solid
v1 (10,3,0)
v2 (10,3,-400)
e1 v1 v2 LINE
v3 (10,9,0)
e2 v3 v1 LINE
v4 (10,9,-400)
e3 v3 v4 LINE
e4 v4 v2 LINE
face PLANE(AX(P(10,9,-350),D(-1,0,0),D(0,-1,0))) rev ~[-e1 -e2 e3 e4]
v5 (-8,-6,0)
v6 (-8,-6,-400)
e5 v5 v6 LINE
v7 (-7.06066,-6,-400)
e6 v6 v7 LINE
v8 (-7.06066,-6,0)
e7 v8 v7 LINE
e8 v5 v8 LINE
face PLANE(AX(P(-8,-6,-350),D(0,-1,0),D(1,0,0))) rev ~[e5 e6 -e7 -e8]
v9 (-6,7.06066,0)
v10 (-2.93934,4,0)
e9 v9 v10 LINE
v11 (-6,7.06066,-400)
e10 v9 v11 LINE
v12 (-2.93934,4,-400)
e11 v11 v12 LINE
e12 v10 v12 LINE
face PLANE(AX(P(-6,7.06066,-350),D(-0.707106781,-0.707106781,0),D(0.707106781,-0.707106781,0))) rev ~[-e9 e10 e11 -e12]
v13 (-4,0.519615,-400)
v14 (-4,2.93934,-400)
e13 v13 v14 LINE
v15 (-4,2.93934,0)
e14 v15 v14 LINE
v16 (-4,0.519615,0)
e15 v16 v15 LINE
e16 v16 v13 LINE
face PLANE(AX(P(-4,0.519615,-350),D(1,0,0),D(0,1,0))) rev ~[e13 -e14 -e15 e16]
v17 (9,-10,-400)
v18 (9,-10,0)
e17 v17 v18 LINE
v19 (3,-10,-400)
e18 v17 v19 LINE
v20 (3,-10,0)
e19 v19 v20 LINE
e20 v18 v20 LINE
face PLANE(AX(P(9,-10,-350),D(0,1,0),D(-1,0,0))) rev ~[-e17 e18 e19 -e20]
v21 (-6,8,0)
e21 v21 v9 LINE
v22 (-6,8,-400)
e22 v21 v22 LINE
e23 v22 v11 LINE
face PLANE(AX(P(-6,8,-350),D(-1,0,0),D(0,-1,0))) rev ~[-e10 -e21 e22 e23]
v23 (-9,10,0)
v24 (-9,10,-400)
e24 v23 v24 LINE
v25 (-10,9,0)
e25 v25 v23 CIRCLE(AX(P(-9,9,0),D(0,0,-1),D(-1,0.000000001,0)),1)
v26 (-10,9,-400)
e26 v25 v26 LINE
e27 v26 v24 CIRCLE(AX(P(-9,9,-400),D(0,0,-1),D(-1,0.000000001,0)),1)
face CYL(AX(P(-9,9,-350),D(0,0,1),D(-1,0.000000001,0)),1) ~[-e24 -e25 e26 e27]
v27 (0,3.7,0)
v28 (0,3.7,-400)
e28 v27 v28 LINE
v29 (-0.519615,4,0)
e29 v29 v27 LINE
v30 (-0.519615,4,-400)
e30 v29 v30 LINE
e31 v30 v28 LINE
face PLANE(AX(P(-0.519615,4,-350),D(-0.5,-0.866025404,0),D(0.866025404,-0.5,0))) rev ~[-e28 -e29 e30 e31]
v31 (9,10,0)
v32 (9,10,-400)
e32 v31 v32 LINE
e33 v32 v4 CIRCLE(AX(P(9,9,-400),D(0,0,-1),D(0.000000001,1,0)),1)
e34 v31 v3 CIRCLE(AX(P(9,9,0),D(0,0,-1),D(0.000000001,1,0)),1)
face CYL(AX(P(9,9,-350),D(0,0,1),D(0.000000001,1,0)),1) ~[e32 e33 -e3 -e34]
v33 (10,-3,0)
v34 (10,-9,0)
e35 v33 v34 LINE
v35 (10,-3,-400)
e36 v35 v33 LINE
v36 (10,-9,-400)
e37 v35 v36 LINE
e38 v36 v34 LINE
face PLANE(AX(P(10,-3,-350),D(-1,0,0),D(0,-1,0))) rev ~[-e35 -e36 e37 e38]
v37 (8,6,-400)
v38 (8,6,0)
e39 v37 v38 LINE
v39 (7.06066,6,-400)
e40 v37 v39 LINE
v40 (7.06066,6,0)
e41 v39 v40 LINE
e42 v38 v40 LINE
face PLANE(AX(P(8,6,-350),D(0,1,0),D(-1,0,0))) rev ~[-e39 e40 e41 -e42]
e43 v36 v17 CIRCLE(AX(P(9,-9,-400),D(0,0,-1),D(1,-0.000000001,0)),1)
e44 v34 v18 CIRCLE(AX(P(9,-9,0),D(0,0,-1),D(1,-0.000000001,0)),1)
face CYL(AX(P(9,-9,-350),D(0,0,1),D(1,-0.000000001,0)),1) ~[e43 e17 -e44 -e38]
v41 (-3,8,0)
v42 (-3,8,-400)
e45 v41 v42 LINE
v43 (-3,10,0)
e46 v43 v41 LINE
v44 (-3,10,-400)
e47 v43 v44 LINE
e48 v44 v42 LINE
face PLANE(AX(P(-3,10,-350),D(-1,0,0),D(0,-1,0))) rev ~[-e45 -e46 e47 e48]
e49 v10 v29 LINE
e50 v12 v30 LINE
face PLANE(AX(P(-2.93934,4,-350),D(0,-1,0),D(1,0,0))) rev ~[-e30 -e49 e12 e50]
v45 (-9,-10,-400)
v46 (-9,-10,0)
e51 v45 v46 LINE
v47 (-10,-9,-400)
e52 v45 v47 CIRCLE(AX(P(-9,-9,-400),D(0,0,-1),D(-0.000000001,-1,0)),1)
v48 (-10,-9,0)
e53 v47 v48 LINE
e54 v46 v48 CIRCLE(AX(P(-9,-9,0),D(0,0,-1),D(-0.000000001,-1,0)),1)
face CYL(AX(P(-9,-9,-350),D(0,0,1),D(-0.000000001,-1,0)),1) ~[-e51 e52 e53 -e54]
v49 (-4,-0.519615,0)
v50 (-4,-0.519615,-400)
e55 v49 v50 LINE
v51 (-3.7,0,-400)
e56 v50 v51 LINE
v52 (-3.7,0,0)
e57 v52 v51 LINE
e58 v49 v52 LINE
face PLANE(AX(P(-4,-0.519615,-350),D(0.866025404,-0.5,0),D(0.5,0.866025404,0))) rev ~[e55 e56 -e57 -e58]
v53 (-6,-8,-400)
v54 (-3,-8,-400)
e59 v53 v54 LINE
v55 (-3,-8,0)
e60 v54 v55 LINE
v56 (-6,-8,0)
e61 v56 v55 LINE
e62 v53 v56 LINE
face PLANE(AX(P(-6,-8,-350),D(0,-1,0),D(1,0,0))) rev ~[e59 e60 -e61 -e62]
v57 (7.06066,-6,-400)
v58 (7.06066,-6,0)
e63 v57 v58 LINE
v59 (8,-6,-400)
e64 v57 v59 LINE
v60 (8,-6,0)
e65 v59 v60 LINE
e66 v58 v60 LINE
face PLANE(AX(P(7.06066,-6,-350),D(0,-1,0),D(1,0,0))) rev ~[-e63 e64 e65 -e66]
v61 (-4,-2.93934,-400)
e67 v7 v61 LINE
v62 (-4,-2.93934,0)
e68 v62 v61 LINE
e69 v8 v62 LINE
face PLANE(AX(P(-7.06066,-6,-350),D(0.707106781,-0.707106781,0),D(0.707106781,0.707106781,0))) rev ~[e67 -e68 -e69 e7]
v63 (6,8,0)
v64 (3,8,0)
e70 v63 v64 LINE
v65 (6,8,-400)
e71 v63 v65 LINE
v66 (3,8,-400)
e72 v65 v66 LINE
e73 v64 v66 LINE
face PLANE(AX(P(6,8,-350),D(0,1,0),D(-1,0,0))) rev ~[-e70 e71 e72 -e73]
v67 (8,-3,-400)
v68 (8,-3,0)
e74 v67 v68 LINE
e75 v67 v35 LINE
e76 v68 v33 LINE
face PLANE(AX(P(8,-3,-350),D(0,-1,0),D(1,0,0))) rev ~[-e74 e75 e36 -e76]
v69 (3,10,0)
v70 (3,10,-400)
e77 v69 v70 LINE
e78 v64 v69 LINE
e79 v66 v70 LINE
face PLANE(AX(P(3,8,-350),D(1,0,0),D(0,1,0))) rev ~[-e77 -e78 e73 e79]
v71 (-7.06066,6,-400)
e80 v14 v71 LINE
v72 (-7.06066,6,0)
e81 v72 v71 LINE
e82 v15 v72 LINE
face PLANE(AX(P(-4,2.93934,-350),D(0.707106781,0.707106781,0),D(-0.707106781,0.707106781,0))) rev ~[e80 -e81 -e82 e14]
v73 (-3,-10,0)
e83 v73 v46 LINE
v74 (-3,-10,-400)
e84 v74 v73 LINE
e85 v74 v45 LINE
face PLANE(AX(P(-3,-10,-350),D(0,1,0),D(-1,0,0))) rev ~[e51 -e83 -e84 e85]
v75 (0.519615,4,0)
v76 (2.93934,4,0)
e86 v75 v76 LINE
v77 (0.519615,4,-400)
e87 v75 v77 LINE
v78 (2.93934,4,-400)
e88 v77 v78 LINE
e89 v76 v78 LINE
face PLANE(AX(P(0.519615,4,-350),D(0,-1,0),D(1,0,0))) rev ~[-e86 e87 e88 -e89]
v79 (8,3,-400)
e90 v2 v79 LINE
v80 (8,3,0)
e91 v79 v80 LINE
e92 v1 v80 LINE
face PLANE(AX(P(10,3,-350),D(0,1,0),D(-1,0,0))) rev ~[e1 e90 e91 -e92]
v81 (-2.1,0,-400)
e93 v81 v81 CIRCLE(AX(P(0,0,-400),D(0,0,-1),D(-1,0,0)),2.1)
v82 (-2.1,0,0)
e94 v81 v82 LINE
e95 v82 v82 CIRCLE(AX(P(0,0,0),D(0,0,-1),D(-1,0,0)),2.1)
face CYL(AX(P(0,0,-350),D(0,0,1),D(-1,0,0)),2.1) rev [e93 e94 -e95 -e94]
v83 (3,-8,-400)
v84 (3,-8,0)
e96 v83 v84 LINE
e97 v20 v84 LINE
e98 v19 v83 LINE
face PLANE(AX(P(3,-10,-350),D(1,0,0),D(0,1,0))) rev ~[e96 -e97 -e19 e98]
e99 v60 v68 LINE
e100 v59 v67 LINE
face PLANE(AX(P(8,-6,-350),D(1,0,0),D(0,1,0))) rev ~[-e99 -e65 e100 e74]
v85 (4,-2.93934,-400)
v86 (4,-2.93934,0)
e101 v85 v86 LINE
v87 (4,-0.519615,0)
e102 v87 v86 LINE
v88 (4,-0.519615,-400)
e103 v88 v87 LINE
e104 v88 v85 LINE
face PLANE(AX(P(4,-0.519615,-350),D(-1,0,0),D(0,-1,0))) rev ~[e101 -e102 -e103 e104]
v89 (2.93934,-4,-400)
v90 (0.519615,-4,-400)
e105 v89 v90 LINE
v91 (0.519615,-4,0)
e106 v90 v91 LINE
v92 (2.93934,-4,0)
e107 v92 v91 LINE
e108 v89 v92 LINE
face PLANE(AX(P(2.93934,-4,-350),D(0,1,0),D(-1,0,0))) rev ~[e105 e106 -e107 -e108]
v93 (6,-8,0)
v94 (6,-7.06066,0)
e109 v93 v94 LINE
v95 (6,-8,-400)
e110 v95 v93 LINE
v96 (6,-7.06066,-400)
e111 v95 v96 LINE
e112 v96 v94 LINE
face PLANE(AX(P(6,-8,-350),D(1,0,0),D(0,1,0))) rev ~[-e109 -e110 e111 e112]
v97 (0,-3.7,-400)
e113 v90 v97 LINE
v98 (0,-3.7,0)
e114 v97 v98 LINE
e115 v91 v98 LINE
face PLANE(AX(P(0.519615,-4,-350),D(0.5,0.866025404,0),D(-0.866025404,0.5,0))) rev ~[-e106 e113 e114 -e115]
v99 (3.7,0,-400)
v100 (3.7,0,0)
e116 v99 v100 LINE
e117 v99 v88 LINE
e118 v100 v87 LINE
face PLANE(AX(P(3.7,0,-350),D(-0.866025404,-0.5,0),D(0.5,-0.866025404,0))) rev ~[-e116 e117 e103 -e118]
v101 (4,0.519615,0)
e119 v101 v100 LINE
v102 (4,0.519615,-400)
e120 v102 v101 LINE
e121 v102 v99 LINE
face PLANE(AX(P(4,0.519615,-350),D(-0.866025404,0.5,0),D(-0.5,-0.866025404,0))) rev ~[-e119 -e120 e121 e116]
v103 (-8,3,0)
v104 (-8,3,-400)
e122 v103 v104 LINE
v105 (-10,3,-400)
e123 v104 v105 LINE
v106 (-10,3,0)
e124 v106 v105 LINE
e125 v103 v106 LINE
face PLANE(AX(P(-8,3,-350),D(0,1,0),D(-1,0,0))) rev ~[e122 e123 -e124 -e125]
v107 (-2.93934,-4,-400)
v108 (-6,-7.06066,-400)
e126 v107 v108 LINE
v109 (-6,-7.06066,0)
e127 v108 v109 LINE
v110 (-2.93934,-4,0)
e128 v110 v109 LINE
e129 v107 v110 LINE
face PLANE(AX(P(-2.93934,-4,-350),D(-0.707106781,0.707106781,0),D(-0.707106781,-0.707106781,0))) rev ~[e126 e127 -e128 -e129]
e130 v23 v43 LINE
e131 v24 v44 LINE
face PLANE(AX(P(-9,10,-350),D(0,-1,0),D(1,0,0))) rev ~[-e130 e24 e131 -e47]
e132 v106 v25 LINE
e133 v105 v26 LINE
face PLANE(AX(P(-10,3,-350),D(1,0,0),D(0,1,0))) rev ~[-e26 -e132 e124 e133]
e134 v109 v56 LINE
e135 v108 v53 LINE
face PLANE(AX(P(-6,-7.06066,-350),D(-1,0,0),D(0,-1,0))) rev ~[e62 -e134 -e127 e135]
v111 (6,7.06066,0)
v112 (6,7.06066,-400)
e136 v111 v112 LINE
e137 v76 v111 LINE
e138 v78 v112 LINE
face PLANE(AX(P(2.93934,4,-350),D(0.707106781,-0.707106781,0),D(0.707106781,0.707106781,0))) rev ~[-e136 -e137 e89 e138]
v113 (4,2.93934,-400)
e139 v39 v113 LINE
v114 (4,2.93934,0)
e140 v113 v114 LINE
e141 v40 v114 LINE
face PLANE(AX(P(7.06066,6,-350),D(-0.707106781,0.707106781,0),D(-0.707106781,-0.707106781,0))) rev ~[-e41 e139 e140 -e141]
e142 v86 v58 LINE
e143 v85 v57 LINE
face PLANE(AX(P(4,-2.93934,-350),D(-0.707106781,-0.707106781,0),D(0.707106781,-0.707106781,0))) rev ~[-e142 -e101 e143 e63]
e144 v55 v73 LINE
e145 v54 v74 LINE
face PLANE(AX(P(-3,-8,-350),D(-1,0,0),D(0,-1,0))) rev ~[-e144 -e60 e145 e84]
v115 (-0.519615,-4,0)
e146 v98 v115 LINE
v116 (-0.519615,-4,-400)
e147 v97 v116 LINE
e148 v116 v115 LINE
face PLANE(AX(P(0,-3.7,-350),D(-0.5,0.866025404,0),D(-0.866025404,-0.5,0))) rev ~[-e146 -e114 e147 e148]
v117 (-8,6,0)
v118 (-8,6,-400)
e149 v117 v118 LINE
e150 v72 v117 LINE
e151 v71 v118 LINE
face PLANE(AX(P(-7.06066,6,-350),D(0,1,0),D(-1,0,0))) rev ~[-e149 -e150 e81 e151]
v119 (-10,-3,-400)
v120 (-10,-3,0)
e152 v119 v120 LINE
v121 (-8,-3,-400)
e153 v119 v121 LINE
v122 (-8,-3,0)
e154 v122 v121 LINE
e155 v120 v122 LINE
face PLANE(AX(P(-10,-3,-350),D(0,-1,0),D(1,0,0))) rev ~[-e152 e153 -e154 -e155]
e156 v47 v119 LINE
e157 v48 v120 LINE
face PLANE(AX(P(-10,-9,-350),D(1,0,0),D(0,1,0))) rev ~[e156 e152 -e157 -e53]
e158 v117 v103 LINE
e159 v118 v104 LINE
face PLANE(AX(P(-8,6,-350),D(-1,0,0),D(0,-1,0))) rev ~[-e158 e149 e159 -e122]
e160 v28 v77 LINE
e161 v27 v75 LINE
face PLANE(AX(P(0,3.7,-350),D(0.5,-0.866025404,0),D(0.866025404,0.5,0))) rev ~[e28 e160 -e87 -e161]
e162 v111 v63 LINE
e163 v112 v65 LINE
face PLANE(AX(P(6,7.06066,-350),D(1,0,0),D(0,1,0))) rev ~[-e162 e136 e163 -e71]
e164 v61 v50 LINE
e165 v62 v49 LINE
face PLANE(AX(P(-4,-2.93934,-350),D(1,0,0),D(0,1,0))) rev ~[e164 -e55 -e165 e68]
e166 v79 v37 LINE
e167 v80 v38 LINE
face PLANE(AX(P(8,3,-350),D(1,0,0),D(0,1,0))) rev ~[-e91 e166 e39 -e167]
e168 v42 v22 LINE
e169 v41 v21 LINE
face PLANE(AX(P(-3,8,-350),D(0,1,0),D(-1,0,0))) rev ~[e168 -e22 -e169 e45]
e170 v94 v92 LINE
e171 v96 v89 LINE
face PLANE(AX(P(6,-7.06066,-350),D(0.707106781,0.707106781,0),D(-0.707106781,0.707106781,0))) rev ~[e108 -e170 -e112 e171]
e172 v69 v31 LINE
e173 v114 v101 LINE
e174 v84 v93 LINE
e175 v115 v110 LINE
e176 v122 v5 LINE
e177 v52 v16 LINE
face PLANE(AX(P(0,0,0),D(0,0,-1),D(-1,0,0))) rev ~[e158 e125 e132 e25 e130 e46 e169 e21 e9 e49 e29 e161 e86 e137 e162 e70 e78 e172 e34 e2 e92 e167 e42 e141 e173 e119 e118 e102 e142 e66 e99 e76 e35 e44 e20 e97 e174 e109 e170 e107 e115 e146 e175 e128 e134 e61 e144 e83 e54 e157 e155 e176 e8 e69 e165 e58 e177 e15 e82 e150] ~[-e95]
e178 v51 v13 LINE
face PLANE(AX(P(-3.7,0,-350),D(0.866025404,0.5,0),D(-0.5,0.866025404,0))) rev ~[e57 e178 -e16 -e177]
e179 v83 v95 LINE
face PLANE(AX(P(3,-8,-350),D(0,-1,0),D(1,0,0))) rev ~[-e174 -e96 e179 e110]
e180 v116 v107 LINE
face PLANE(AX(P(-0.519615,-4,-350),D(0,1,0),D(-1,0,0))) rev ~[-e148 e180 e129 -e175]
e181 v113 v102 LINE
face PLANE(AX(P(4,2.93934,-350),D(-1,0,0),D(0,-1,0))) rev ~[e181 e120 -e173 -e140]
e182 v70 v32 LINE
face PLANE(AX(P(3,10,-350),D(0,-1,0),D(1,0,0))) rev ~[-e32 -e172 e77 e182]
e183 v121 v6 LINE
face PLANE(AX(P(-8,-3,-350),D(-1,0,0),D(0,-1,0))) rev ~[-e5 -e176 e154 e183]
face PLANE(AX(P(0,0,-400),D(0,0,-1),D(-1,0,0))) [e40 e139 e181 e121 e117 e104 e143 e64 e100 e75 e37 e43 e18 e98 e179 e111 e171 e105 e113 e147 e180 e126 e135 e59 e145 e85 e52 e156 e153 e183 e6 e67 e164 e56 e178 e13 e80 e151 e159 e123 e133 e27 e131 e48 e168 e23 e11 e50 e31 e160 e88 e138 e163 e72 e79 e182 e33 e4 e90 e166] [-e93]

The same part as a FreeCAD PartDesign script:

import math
import FreeCAD as App
import Part
import Sketcher

V = App.Vector
Q = App.Units.Quantity

doc = App.newDocument("Part")
body = doc.addObject("PartDesign::Body", "Body")

# Sketch on XY plane
sketch1 = body.newObject("Sketcher::SketchObject", "Sketch")
sketch1.AttachmentSupport = (doc.getObject("XY_Plane"), [""])
sketch1.MapMode = "FlatFace"
sketch1.AttachmentOffset = App.Placement(V(0, 0, -350), App.Rotation())
sketch1.addGeometry([
    Part.LineSegment(V(-8, -3, 0), V(-8, -6, 0)),  # 0
    Part.LineSegment(V(-8, -6, 0), V(-7.1, -6, 0)),  # 1
    Part.LineSegment(V(-7.1, -6, 0), V(-4, -2.9, 0)),  # 2
    Part.LineSegment(V(-4, -2.9, 0), V(-4, -0.5, 0)),  # 3
    Part.LineSegment(V(-4, -0.5, 0), V(-3.7, 0, 0)),  # 4
    Part.LineSegment(V(-3.7, 0, 0), V(-4, 0.5, 0)),  # 5
    Part.LineSegment(V(-4, 0.5, 0), V(-4, 2.9, 0)),  # 6
    Part.LineSegment(V(-4, 2.9, 0), V(-7.1, 6, 0)),  # 7
    Part.LineSegment(V(-7.1, 6, 0), V(-8, 6, 0)),  # 8
    Part.LineSegment(V(-8, 6, 0), V(-8, 3, 0)),  # 9
    Part.LineSegment(V(-8, 3, 0), V(-10, 3, 0)),  # 10
    Part.LineSegment(V(-10, 3, 0), V(-10, 9, 0)),  # 11
    Part.ArcOfCircle(Part.Circle(V(-9, 9, 0), V(0, 0, 1), 1), math.radians(90), math.radians(180)),  # 12
    Part.LineSegment(V(-9, 10, 0), V(-3, 10, 0)),  # 13
    Part.LineSegment(V(-3, 10, 0), V(-3, 8, 0)),  # 14
    Part.LineSegment(V(-3, 8, 0), V(-6, 8, 0)),  # 15
    Part.LineSegment(V(-6, 8, 0), V(-6, 7.1, 0)),  # 16
    Part.LineSegment(V(-6, 7.1, 0), V(-2.9, 4, 0)),  # 17
    Part.LineSegment(V(-2.9, 4, 0), V(-0.5, 4, 0)),  # 18
    Part.LineSegment(V(-0.5, 4, 0), V(0, 3.7, 0)),  # 19
    Part.LineSegment(V(0, 3.7, 0), V(0.5, 4, 0)),  # 20
    Part.LineSegment(V(0.5, 4, 0), V(2.9, 4, 0)),  # 21
    Part.LineSegment(V(2.9, 4, 0), V(6, 7.1, 0)),  # 22
    Part.LineSegment(V(6, 7.1, 0), V(6, 8, 0)),  # 23
    Part.LineSegment(V(6, 8, 0), V(3, 8, 0)),  # 24
    Part.LineSegment(V(3, 8, 0), V(3, 10, 0)),  # 25
    Part.LineSegment(V(3, 10, 0), V(9, 10, 0)),  # 26
    Part.ArcOfCircle(Part.Circle(V(9, 9, 0), V(0, 0, 1), 1), math.radians(0), math.radians(90)),  # 27
    Part.LineSegment(V(10, 9, 0), V(10, 3, 0)),  # 28
    Part.LineSegment(V(10, 3, 0), V(8, 3, 0)),  # 29
    Part.LineSegment(V(8, 3, 0), V(8, 6, 0)),  # 30
    Part.LineSegment(V(8, 6, 0), V(7.1, 6, 0)),  # 31
    Part.LineSegment(V(7.1, 6, 0), V(4, 2.9, 0)),  # 32
    Part.LineSegment(V(4, 2.9, 0), V(4, 0.5, 0)),  # 33
    Part.LineSegment(V(4, 0.5, 0), V(3.7, 0, 0)),  # 34
    Part.LineSegment(V(3.7, 0, 0), V(4, -0.5, 0)),  # 35
    Part.LineSegment(V(4, -0.5, 0), V(4, -2.9, 0)),  # 36
    Part.LineSegment(V(4, -2.9, 0), V(7.1, -6, 0)),  # 37
    Part.LineSegment(V(7.1, -6, 0), V(8, -6, 0)),  # 38
    Part.LineSegment(V(8, -6, 0), V(8, -3, 0)),  # 39
    Part.LineSegment(V(8, -3, 0), V(10, -3, 0)),  # 40
    Part.LineSegment(V(10, -3, 0), V(10, -9, 0)),  # 41
    Part.ArcOfCircle(Part.Circle(V(9, -9, 0), V(0, 0, 1), 1), math.radians(-90), math.radians(0)),  # 42
    Part.LineSegment(V(9, -10, 0), V(3, -10, 0)),  # 43
    Part.LineSegment(V(3, -10, 0), V(3, -8, 0)),  # 44
    Part.LineSegment(V(3, -8, 0), V(6, -8, 0)),  # 45
    Part.LineSegment(V(6, -8, 0), V(6, -7.1, 0)),  # 46
    Part.LineSegment(V(6, -7.1, 0), V(2.9, -4, 0)),  # 47
    Part.LineSegment(V(2.9, -4, 0), V(0.5, -4, 0)),  # 48
    Part.LineSegment(V(0.5, -4, 0), V(0, -3.7, 0)),  # 49
    Part.LineSegment(V(0, -3.7, 0), V(-0.5, -4, 0)),  # 50
    Part.LineSegment(V(-0.5, -4, 0), V(-2.9, -4, 0)),  # 51
    Part.LineSegment(V(-2.9, -4, 0), V(-6, -7.1, 0)),  # 52
    Part.LineSegment(V(-6, -7.1, 0), V(-6, -8, 0)),  # 53
    Part.LineSegment(V(-6, -8, 0), V(-3, -8, 0)),  # 54
    Part.LineSegment(V(-3, -8, 0), V(-3, -10, 0)),  # 55
    Part.LineSegment(V(-3, -10, 0), V(-9, -10, 0)),  # 56
    Part.ArcOfCircle(Part.Circle(V(-9, -9, 0), V(0, 0, 1), 1), math.radians(-180), math.radians(-90)),  # 57
    Part.LineSegment(V(-10, -9, 0), V(-10, -3, 0)),  # 58
    Part.LineSegment(V(-10, -3, 0), V(-8, -3, 0)),  # 59
    Part.Circle(V(0, 0, 0), V(0, 0, 1), 2.1),  # 60
], False)
sketch1.addConstraint([
    Sketcher.Constraint("Coincident", 0, 2, 1, 1),
    Sketcher.Constraint("Coincident", 1, 2, 2, 1),
    Sketcher.Constraint("Coincident", 2, 2, 3, 1),
    Sketcher.Constraint("Coincident", 3, 2, 4, 1),
    Sketcher.Constraint("Coincident", 4, 2, 5, 1),
    Sketcher.Constraint("Coincident", 5, 2, 6, 1),
    Sketcher.Constraint("Coincident", 6, 2, 7, 1),
    Sketcher.Constraint("Coincident", 7, 2, 8, 1),
    Sketcher.Constraint("Coincident", 8, 2, 9, 1),
    Sketcher.Constraint("Coincident", 9, 2, 10, 1),
    Sketcher.Constraint("Coincident", 10, 2, 11, 1),
    Sketcher.Constraint("Tangent", 11, 2, 12, 2),
    Sketcher.Constraint("Tangent", 12, 1, 13, 1),
    Sketcher.Constraint("Coincident", 13, 2, 14, 1),
    Sketcher.Constraint("Coincident", 14, 2, 15, 1),
    Sketcher.Constraint("Coincident", 15, 2, 16, 1),
    Sketcher.Constraint("Coincident", 16, 2, 17, 1),
    Sketcher.Constraint("Coincident", 17, 2, 18, 1),
    Sketcher.Constraint("Coincident", 18, 2, 19, 1),
    Sketcher.Constraint("Coincident", 19, 2, 20, 1),
    Sketcher.Constraint("Coincident", 20, 2, 21, 1),
    Sketcher.Constraint("Coincident", 21, 2, 22, 1),
    Sketcher.Constraint("Coincident", 22, 2, 23, 1),
    Sketcher.Constraint("Coincident", 23, 2, 24, 1),
    Sketcher.Constraint("Coincident", 24, 2, 25, 1),
    Sketcher.Constraint("Coincident", 25, 2, 26, 1),
    Sketcher.Constraint("Tangent", 26, 2, 27, 2),
    Sketcher.Constraint("Tangent", 27, 1, 28, 1),
    Sketcher.Constraint("Coincident", 28, 2, 29, 1),
    Sketcher.Constraint("Coincident", 29, 2, 30, 1),
    Sketcher.Constraint("Coincident", 30, 2, 31, 1),
    Sketcher.Constraint("Coincident", 31, 2, 32, 1),
    Sketcher.Constraint("Coincident", 32, 2, 33, 1),
    Sketcher.Constraint("Coincident", 33, 2, 34, 1),
    Sketcher.Constraint("Coincident", 34, 2, 35, 1),
    Sketcher.Constraint("Coincident", 35, 2, 36, 1),
    Sketcher.Constraint("Coincident", 36, 2, 37, 1),
    Sketcher.Constraint("Coincident", 37, 2, 38, 1),
    Sketcher.Constraint("Coincident", 38, 2, 39, 1),
    Sketcher.Constraint("Coincident", 39, 2, 40, 1),
    Sketcher.Constraint("Coincident", 40, 2, 41, 1),
    Sketcher.Constraint("Tangent", 41, 2, 42, 2),
    Sketcher.Constraint("Tangent", 42, 1, 43, 1),
    Sketcher.Constraint("Coincident", 43, 2, 44, 1),
    Sketcher.Constraint("Coincident", 44, 2, 45, 1),
    Sketcher.Constraint("Coincident", 45, 2, 46, 1),
    Sketcher.Constraint("Coincident", 46, 2, 47, 1),
    Sketcher.Constraint("Coincident", 47, 2, 48, 1),
    Sketcher.Constraint("Coincident", 48, 2, 49, 1),
    Sketcher.Constraint("Coincident", 49, 2, 50, 1),
    Sketcher.Constraint("Coincident", 50, 2, 51, 1),
    Sketcher.Constraint("Coincident", 51, 2, 52, 1),
    Sketcher.Constraint("Coincident", 52, 2, 53, 1),
    Sketcher.Constraint("Coincident", 53, 2, 54, 1),
    Sketcher.Constraint("Coincident", 54, 2, 55, 1),
    Sketcher.Constraint("Coincident", 55, 2, 56, 1),
    Sketcher.Constraint("Tangent", 56, 2, 57, 2),
    Sketcher.Constraint("Tangent", 57, 1, 58, 1),
    Sketcher.Constraint("Coincident", 58, 2, 59, 1),
    Sketcher.Constraint("Coincident", 59, 2, 0, 1),
    Sketcher.Constraint("Vertical", 0),
    Sketcher.Constraint("Horizontal", 1),
    Sketcher.Constraint("Vertical", 3),
    Sketcher.Constraint("Vertical", 6),
    Sketcher.Constraint("Horizontal", 8),
    Sketcher.Constraint("Vertical", 9),
    Sketcher.Constraint("Horizontal", 10),
    Sketcher.Constraint("Vertical", 11),
    Sketcher.Constraint("Horizontal", 13),
    Sketcher.Constraint("Vertical", 14),
    Sketcher.Constraint("Horizontal", 15),
    Sketcher.Constraint("Vertical", 16),
    Sketcher.Constraint("Horizontal", 18),
    Sketcher.Constraint("Horizontal", 21),
    Sketcher.Constraint("Vertical", 23),
    Sketcher.Constraint("Horizontal", 24),
    Sketcher.Constraint("Vertical", 25),
    Sketcher.Constraint("Horizontal", 26),
    Sketcher.Constraint("Vertical", 28),
    Sketcher.Constraint("Horizontal", 29),
    Sketcher.Constraint("Vertical", 30),
    Sketcher.Constraint("Horizontal", 31),
    Sketcher.Constraint("Vertical", 33),
    Sketcher.Constraint("Vertical", 36),
    Sketcher.Constraint("Horizontal", 38),
    Sketcher.Constraint("Vertical", 39),
    Sketcher.Constraint("Horizontal", 40),
    Sketcher.Constraint("Vertical", 41),
    Sketcher.Constraint("Horizontal", 43),
    Sketcher.Constraint("Vertical", 44),
    Sketcher.Constraint("Horizontal", 45),
    Sketcher.Constraint("Vertical", 46),
    Sketcher.Constraint("Horizontal", 48),
    Sketcher.Constraint("Horizontal", 51),
    Sketcher.Constraint("Vertical", 53),
    Sketcher.Constraint("Horizontal", 54),
    Sketcher.Constraint("Vertical", 55),
    Sketcher.Constraint("Horizontal", 56),
    Sketcher.Constraint("Vertical", 58),
    Sketcher.Constraint("Horizontal", 59),
    Sketcher.Constraint("Coincident", 60, 3, -1, 1),
    Sketcher.Constraint("Equal", 12, 27),
    Sketcher.Constraint("Equal", 27, 42),
    Sketcher.Constraint("Equal", 42, 57),
    Sketcher.Constraint("Symmetric", 12, 3, 42, 3, -1, 1),
    Sketcher.Constraint("Symmetric", 27, 3, 57, 3, -1, 1),
    Sketcher.Constraint("Symmetric", 0, 2, 30, 2, -1, 1),
    Sketcher.Constraint("Symmetric", 2, 2, 32, 2, -1, 1),
    Sketcher.Constraint("Symmetric", 4, 2, 34, 2, -1, 1),
    Sketcher.Constraint("Symmetric", 5, 2, 35, 2, -1, 1),
    Sketcher.Constraint("Symmetric", 7, 2, 37, 2, -1, 1),
    Sketcher.Constraint("Symmetric", 9, 2, 39, 2, -1, 1),
    Sketcher.Constraint("Symmetric", 14, 2, 44, 2, -1, 1),
    Sketcher.Constraint("Symmetric", 16, 2, 46, 2, -1, 1),
    Sketcher.Constraint("Symmetric", 17, 2, 47, 2, -1, 1),
    Sketcher.Constraint("Symmetric", 19, 2, 49, 2, -1, 1),
    Sketcher.Constraint("Symmetric", 20, 2, 50, 2, -1, 1),
    Sketcher.Constraint("Symmetric", 22, 2, 52, 2, -1, 1),
    Sketcher.Constraint("Symmetric", 24, 2, 54, 2, -1, 1),
    Sketcher.Constraint("Symmetric", 12, 3, 27, 3, -2),
    Sketcher.Constraint("Symmetric", 18, 2, 20, 2, -2),
    Sketcher.Constraint("Symmetric", 16, 2, 22, 2, -2),
    Sketcher.Constraint("Symmetric", 14, 2, 24, 2, -2),
    Sketcher.Constraint("Symmetric", 9, 2, 29, 2, -2),
    Sketcher.Constraint("Symmetric", 7, 2, 31, 2, -2),
    Sketcher.Constraint("Symmetric", 6, 2, 32, 2, -2),
    Sketcher.Constraint("PointOnObject", 4, 2, -1),
    Sketcher.Constraint("PointOnObject", 19, 2, -2),
    Sketcher.Constraint("Perpendicular", 2, 7),
    Sketcher.Constraint("Parallel", 7, 17),
    Sketcher.Constraint("Perpendicular", 4, 19),
    Sketcher.Constraint("Perpendicular", 5, 20),
    Sketcher.Constraint("Perpendicular", 17, 22),
    Sketcher.Constraint("Parallel", 22, 32),
    Sketcher.Constraint("Perpendicular", 19, 34),
    Sketcher.Constraint("Perpendicular", 32, 37),
    Sketcher.Constraint("Perpendicular", 34, 49),
    Sketcher.Constraint("Perpendicular", 47, 52),
    Sketcher.Constraint("Horizontal", 40, 2, 58, 2),
    Sketcher.Constraint("Equal", 54, 0),
    Sketcher.Constraint("Equal", 51, 3),
    Sketcher.Constraint("Equal", 56, 11),
    Sketcher.Constraint("Equal", 59, 14),
    Sketcher.Constraint("Equal", 38, 16),
    Sketcher.Constraint("Equal", 7, 17),
    Sketcher.Constraint("Equal", 5, 19),
    Sketcher.Constraint("Radius", 12, 1.0),
    Sketcher.Constraint("Diameter", 60, 4.2),
    Sketcher.Constraint("DistanceX", 10, 2, 10, 1, 2.0),
    Sketcher.Constraint("DistanceX", 13, 1, 13, 2, 6.0),
    Sketcher.Constraint("DistanceX", 15, 2, 15, 1, 3.0),
    Sketcher.Constraint("Angle", 4, Q("60 deg")),
    Sketcher.Constraint("DistanceX", 12, 3, -1, 1, 9.0),
    Sketcher.Constraint("DistanceX", 2, 2, -1, 1, 4.0),
    Sketcher.Constraint("Distance", 4, 0.6),
    Sketcher.Constraint("DistanceX", 1, 1, 1, 2, 0.93934),
])
pad1 = body.newObject("PartDesign::Pad", "Pad")
pad1.Profile = sketch1
pad1.Length = 350

# Sketch on XY plane
sketch2 = body.newObject("Sketcher::SketchObject", "Sketch001")
sketch2.AttachmentSupport = (doc.getObject("XY_Plane"), [""])
sketch2.MapMode = "FlatFace"
sketch2.AttachmentOffset = App.Placement(V(0, 0, -350), App.Rotation())
sketch2.addGeometry([
    Part.LineSegment(V(-10, -3, 0), V(-8, -3, 0)),  # 0
    Part.LineSegment(V(-8, -3, 0), V(-8, -6, 0)),  # 1
    Part.LineSegment(V(-8, -6, 0), V(-7.1, -6, 0)),  # 2
    Part.LineSegment(V(-7.1, -6, 0), V(-4, -2.9, 0)),  # 3
    Part.LineSegment(V(-4, -2.9, 0), V(-4, -0.5, 0)),  # 4
    Part.LineSegment(V(-4, -0.5, 0), V(-3.7, 0, 0)),  # 5
    Part.LineSegment(V(-3.7, 0, 0), V(-4, 0.5, 0)),  # 6
    Part.LineSegment(V(-4, 0.5, 0), V(-4, 2.9, 0)),  # 7
    Part.LineSegment(V(-4, 2.9, 0), V(-7.1, 6, 0)),  # 8
    Part.LineSegment(V(-7.1, 6, 0), V(-8, 6, 0)),  # 9
    Part.LineSegment(V(-8, 6, 0), V(-8, 3, 0)),  # 10
    Part.LineSegment(V(-8, 3, 0), V(-10, 3, 0)),  # 11
    Part.LineSegment(V(-10, 3, 0), V(-10, 9, 0)),  # 12
    Part.ArcOfCircle(Part.Circle(V(-9, 9, 0), V(0, 0, 1), 1), math.radians(90), math.radians(180)),  # 13
    Part.LineSegment(V(-9, 10, 0), V(-3, 10, 0)),  # 14
    Part.LineSegment(V(-3, 10, 0), V(-3, 8, 0)),  # 15
    Part.LineSegment(V(-3, 8, 0), V(-6, 8, 0)),  # 16
    Part.LineSegment(V(-6, 8, 0), V(-6, 7.1, 0)),  # 17
    Part.LineSegment(V(-6, 7.1, 0), V(-2.9, 4, 0)),  # 18
    Part.LineSegment(V(-2.9, 4, 0), V(-0.5, 4, 0)),  # 19
    Part.LineSegment(V(-0.5, 4, 0), V(0, 3.7, 0)),  # 20
    Part.LineSegment(V(0, 3.7, 0), V(0.5, 4, 0)),  # 21
    Part.LineSegment(V(0.5, 4, 0), V(2.9, 4, 0)),  # 22
    Part.LineSegment(V(2.9, 4, 0), V(6, 7.1, 0)),  # 23
    Part.LineSegment(V(6, 7.1, 0), V(6, 8, 0)),  # 24
    Part.LineSegment(V(6, 8, 0), V(3, 8, 0)),  # 25
    Part.LineSegment(V(3, 8, 0), V(3, 10, 0)),  # 26
    Part.LineSegment(V(3, 10, 0), V(9, 10, 0)),  # 27
    Part.ArcOfCircle(Part.Circle(V(9, 9, 0), V(0, 0, 1), 1), math.radians(0), math.radians(90)),  # 28
    Part.LineSegment(V(10, 9, 0), V(10, 3, 0)),  # 29
    Part.LineSegment(V(10, 3, 0), V(8, 3, 0)),  # 30
    Part.LineSegment(V(8, 3, 0), V(8, 6, 0)),  # 31
    Part.LineSegment(V(8, 6, 0), V(7.1, 6, 0)),  # 32
    Part.LineSegment(V(7.1, 6, 0), V(4, 2.9, 0)),  # 33
    Part.LineSegment(V(4, 2.9, 0), V(4, 0.5, 0)),  # 34
    Part.LineSegment(V(4, 0.5, 0), V(3.7, 0, 0)),  # 35
    Part.LineSegment(V(3.7, 0, 0), V(4, -0.5, 0)),  # 36
    Part.LineSegment(V(4, -0.5, 0), V(4, -2.9, 0)),  # 37
    Part.LineSegment(V(4, -2.9, 0), V(7.1, -6, 0)),  # 38
    Part.LineSegment(V(7.1, -6, 0), V(8, -6, 0)),  # 39
    Part.LineSegment(V(8, -6, 0), V(8, -3, 0)),  # 40
    Part.LineSegment(V(8, -3, 0), V(10, -3, 0)),  # 41
    Part.LineSegment(V(10, -3, 0), V(10, -9, 0)),  # 42
    Part.ArcOfCircle(Part.Circle(V(9, -9, 0), V(0, 0, 1), 1), math.radians(-90), math.radians(0)),  # 43
    Part.LineSegment(V(9, -10, 0), V(3, -10, 0)),  # 44
    Part.LineSegment(V(3, -10, 0), V(3, -8, 0)),  # 45
    Part.LineSegment(V(3, -8, 0), V(6, -8, 0)),  # 46
    Part.LineSegment(V(6, -8, 0), V(6, -7.1, 0)),  # 47
    Part.LineSegment(V(6, -7.1, 0), V(2.9, -4, 0)),  # 48
    Part.LineSegment(V(2.9, -4, 0), V(0.5, -4, 0)),  # 49
    Part.LineSegment(V(0.5, -4, 0), V(0, -3.7, 0)),  # 50
    Part.LineSegment(V(0, -3.7, 0), V(-0.5, -4, 0)),  # 51
    Part.LineSegment(V(-0.5, -4, 0), V(-2.9, -4, 0)),  # 52
    Part.LineSegment(V(-2.9, -4, 0), V(-6, -7.1, 0)),  # 53
    Part.LineSegment(V(-6, -7.1, 0), V(-6, -8, 0)),  # 54
    Part.LineSegment(V(-6, -8, 0), V(-3, -8, 0)),  # 55
    Part.LineSegment(V(-3, -8, 0), V(-3, -10, 0)),  # 56
    Part.LineSegment(V(-3, -10, 0), V(-9, -10, 0)),  # 57
    Part.ArcOfCircle(Part.Circle(V(-9, -9, 0), V(0, 0, 1), 1), math.radians(-180), math.radians(-90)),  # 58
    Part.LineSegment(V(-10, -9, 0), V(-10, -3, 0)),  # 59
    Part.Circle(V(0, 0, 0), V(0, 0, 1), 2.1),  # 60
], False)
sketch2.addConstraint([
    Sketcher.Constraint("Coincident", 0, 2, 1, 1),
    Sketcher.Constraint("Coincident", 1, 2, 2, 1),
    Sketcher.Constraint("Coincident", 2, 2, 3, 1),
    Sketcher.Constraint("Coincident", 3, 2, 4, 1),
    Sketcher.Constraint("Coincident", 4, 2, 5, 1),
    Sketcher.Constraint("Coincident", 5, 2, 6, 1),
    Sketcher.Constraint("Coincident", 6, 2, 7, 1),
    Sketcher.Constraint("Coincident", 7, 2, 8, 1),
    Sketcher.Constraint("Coincident", 8, 2, 9, 1),
    Sketcher.Constraint("Coincident", 9, 2, 10, 1),
    Sketcher.Constraint("Coincident", 10, 2, 11, 1),
    Sketcher.Constraint("Coincident", 11, 2, 12, 1),
    Sketcher.Constraint("Tangent", 12, 2, 13, 2),
    Sketcher.Constraint("Tangent", 13, 1, 14, 1),
    Sketcher.Constraint("Coincident", 14, 2, 15, 1),
    Sketcher.Constraint("Coincident", 15, 2, 16, 1),
    Sketcher.Constraint("Coincident", 16, 2, 17, 1),
    Sketcher.Constraint("Coincident", 17, 2, 18, 1),
    Sketcher.Constraint("Coincident", 18, 2, 19, 1),
    Sketcher.Constraint("Coincident", 19, 2, 20, 1),
    Sketcher.Constraint("Coincident", 20, 2, 21, 1),
    Sketcher.Constraint("Coincident", 21, 2, 22, 1),
    Sketcher.Constraint("Coincident", 22, 2, 23, 1),
    Sketcher.Constraint("Coincident", 23, 2, 24, 1),
    Sketcher.Constraint("Coincident", 24, 2, 25, 1),
    Sketcher.Constraint("Coincident", 25, 2, 26, 1),
    Sketcher.Constraint("Coincident", 26, 2, 27, 1),
    Sketcher.Constraint("Tangent", 27, 2, 28, 2),
    Sketcher.Constraint("Tangent", 28, 1, 29, 1),
    Sketcher.Constraint("Coincident", 29, 2, 30, 1),
    Sketcher.Constraint("Coincident", 30, 2, 31, 1),
    Sketcher.Constraint("Coincident", 31, 2, 32, 1),
    Sketcher.Constraint("Coincident", 32, 2, 33, 1),
    Sketcher.Constraint("Coincident", 33, 2, 34, 1),
    Sketcher.Constraint("Coincident", 34, 2, 35, 1),
    Sketcher.Constraint("Coincident", 35, 2, 36, 1),
    Sketcher.Constraint("Coincident", 36, 2, 37, 1),
    Sketcher.Constraint("Coincident", 37, 2, 38, 1),
    Sketcher.Constraint("Coincident", 38, 2, 39, 1),
    Sketcher.Constraint("Coincident", 39, 2, 40, 1),
    Sketcher.Constraint("Coincident", 40, 2, 41, 1),
    Sketcher.Constraint("Coincident", 41, 2, 42, 1),
    Sketcher.Constraint("Tangent", 42, 2, 43, 2),
    Sketcher.Constraint("Tangent", 43, 1, 44, 1),
    Sketcher.Constraint("Coincident", 44, 2, 45, 1),
    Sketcher.Constraint("Coincident", 45, 2, 46, 1),
    Sketcher.Constraint("Coincident", 46, 2, 47, 1),
    Sketcher.Constraint("Coincident", 47, 2, 48, 1),
    Sketcher.Constraint("Coincident", 48, 2, 49, 1),
    Sketcher.Constraint("Coincident", 49, 2, 50, 1),
    Sketcher.Constraint("Coincident", 50, 2, 51, 1),
    Sketcher.Constraint("Coincident", 51, 2, 52, 1),
    Sketcher.Constraint("Coincident", 52, 2, 53, 1),
    Sketcher.Constraint("Coincident", 53, 2, 54, 1),
    Sketcher.Constraint("Coincident", 54, 2, 55, 1),
    Sketcher.Constraint("Coincident", 55, 2, 56, 1),
    Sketcher.Constraint("Coincident", 56, 2, 57, 1),
    Sketcher.Constraint("Tangent", 57, 2, 58, 2),
    Sketcher.Constraint("Tangent", 58, 1, 59, 1),
    Sketcher.Constraint("Coincident", 59, 2, 0, 1),
    Sketcher.Constraint("Horizontal", 0),
    Sketcher.Constraint("Vertical", 1),
    Sketcher.Constraint("Horizontal", 2),
    Sketcher.Constraint("Vertical", 4),
    Sketcher.Constraint("Vertical", 7),
    Sketcher.Constraint("Horizontal", 9),
    Sketcher.Constraint("Vertical", 10),
    Sketcher.Constraint("Horizontal", 11),
    Sketcher.Constraint("Vertical", 12),
    Sketcher.Constraint("Horizontal", 14),
    Sketcher.Constraint("Vertical", 15),
    Sketcher.Constraint("Horizontal", 16),
    Sketcher.Constraint("Vertical", 17),
    Sketcher.Constraint("Horizontal", 19),
    Sketcher.Constraint("Horizontal", 22),
    Sketcher.Constraint("Vertical", 24),
    Sketcher.Constraint("Horizontal", 25),
    Sketcher.Constraint("Vertical", 26),
    Sketcher.Constraint("Horizontal", 27),
    Sketcher.Constraint("Vertical", 29),
    Sketcher.Constraint("Horizontal", 30),
    Sketcher.Constraint("Vertical", 31),
    Sketcher.Constraint("Horizontal", 32),
    Sketcher.Constraint("Vertical", 34),
    Sketcher.Constraint("Vertical", 37),
    Sketcher.Constraint("Horizontal", 39),
    Sketcher.Constraint("Vertical", 40),
    Sketcher.Constraint("Horizontal", 41),
    Sketcher.Constraint("Vertical", 42),
    Sketcher.Constraint("Horizontal", 44),
    Sketcher.Constraint("Vertical", 45),
    Sketcher.Constraint("Horizontal", 46),
    Sketcher.Constraint("Vertical", 47),
    Sketcher.Constraint("Horizontal", 49),
    Sketcher.Constraint("Horizontal", 52),
    Sketcher.Constraint("Vertical", 54),
    Sketcher.Constraint("Horizontal", 55),
    Sketcher.Constraint("Vertical", 56),
    Sketcher.Constraint("Horizontal", 57),
    Sketcher.Constraint("Vertical", 59),
    Sketcher.Constraint("Coincident", 60, 3, -1, 1),
    Sketcher.Constraint("Equal", 13, 28),
    Sketcher.Constraint("Equal", 28, 43),
    Sketcher.Constraint("Equal", 43, 58),
    Sketcher.Constraint("Symmetric", 13, 3, 43, 3, -1, 1),
    Sketcher.Constraint("Symmetric", 28, 3, 58, 3, -1, 1),
    Sketcher.Constraint("Symmetric", 0, 2, 30, 2, -1, 1),
    Sketcher.Constraint("Symmetric", 2, 2, 32, 2, -1, 1),
    Sketcher.Constraint("Symmetric", 3, 2, 33, 2, -1, 1),
    Sketcher.Constraint("Symmetric", 5, 2, 35, 2, -1, 1),
    Sketcher.Constraint("Symmetric", 6, 2, 36, 2, -1, 1),
    Sketcher.Constraint("Symmetric", 8, 2, 38, 2, -1, 1),
    Sketcher.Constraint("Symmetric", 10, 2, 40, 2, -1, 1),
    Sketcher.Constraint("Symmetric", 15, 2, 45, 2, -1, 1),
    Sketcher.Constraint("Symmetric", 17, 2, 47, 2, -1, 1),
    Sketcher.Constraint("Symmetric", 18, 2, 48, 2, -1, 1),
    Sketcher.Constraint("Symmetric", 20, 2, 50, 2, -1, 1),
    Sketcher.Constraint("Symmetric", 21, 2, 51, 2, -1, 1),
    Sketcher.Constraint("Symmetric", 23, 2, 53, 2, -1, 1),
    Sketcher.Constraint("Symmetric", 25, 2, 55, 2, -1, 1),
    Sketcher.Constraint("Symmetric", 13, 3, 28, 3, -2),
    Sketcher.Constraint("Symmetric", 19, 2, 21, 2, -2),
    Sketcher.Constraint("Symmetric", 17, 2, 23, 2, -2),
    Sketcher.Constraint("Symmetric", 15, 2, 25, 2, -2),
    Sketcher.Constraint("Symmetric", 10, 2, 30, 2, -2),
    Sketcher.Constraint("Symmetric", 8, 2, 32, 2, -2),
    Sketcher.Constraint("Symmetric", 7, 2, 33, 2, -2),
    Sketcher.Constraint("PointOnObject", 5, 2, -1),
    Sketcher.Constraint("PointOnObject", 20, 2, -2),
    Sketcher.Constraint("Perpendicular", 3, 8),
    Sketcher.Constraint("Parallel", 8, 18),
    Sketcher.Constraint("Perpendicular", 5, 20),
    Sketcher.Constraint("Perpendicular", 6, 21),
    Sketcher.Constraint("Perpendicular", 18, 23),
    Sketcher.Constraint("Perpendicular", 20, 35),
    Sketcher.Constraint("Perpendicular", 33, 38),
    Sketcher.Constraint("Perpendicular", 35, 50),
    Sketcher.Constraint("Perpendicular", 48, 53),
    Sketcher.Constraint("Equal", 55, 1),
    Sketcher.Constraint("Equal", 52, 4),
    Sketcher.Constraint("Equal", 57, 12),
    Sketcher.Constraint("Equal", 41, 15),
    Sketcher.Constraint("Equal", 39, 17),
    Sketcher.Constraint("Equal", 8, 18),
    Sketcher.Constraint("Equal", 6, 20),
    Sketcher.Constraint("Radius", 13, 1.0),
    Sketcher.Constraint("Diameter", 60, 4.2),
    Sketcher.Constraint("DistanceX", 0, 1, 0, 2, 2.0),
    Sketcher.Constraint("DistanceX", 14, 1, 14, 2, 6.0),
    Sketcher.Constraint("DistanceX", 16, 2, 16, 1, 3.0),
    Sketcher.Constraint("Angle", 5, Q("60 deg")),
    Sketcher.Constraint("DistanceX", 13, 3, -1, 1, 9.0),
    Sketcher.Constraint("DistanceX", 3, 2, -1, 1, 4.0),
    Sketcher.Constraint("Distance", 5, 0.6),
    Sketcher.Constraint("DistanceX", 2, 1, 2, 2, 0.93934),
])
pad2 = body.newObject("PartDesign::Pad", "Pad001")
pad2.Profile = sketch2
pad2.Length = 50
pad2.Reversed = True

doc.recompute()
